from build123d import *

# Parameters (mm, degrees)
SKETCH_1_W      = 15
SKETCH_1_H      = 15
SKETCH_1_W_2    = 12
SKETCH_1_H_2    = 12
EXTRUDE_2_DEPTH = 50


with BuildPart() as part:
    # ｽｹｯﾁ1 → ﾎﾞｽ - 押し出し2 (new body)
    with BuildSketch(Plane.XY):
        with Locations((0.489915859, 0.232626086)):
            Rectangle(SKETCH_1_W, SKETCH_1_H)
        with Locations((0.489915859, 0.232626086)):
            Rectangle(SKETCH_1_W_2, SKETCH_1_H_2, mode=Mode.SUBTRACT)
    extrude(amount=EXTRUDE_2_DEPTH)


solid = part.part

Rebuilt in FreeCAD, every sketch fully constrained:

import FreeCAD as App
import Part
import Sketcher
from FreeCAD import Vector
Q = App.Units.Quantity

doc = App.newDocument("Part")
body = doc.addObject("PartDesign::Body", "Body")

sketch1 = body.newObject("Sketcher::SketchObject", "Sketch")
sketch1.AttachmentSupport = (doc.getObject("XY_Plane"), [""])
sketch1.MapMode = "FlatFace"
sketch1.addGeometry([
    Part.LineSegment(Vector(-7.010084, 7.732626, 0), Vector(-7.010084, -7.267374, 0)),
    Part.LineSegment(Vector(-7.010084, -7.267374, 0), Vector(7.989916, -7.267374, 0)),
    Part.LineSegment(Vector(7.989916, -7.267374, 0), Vector(7.989916, 7.732626, 0)),
    Part.LineSegment(Vector(7.989916, 7.732626, 0), Vector(-7.010084, 7.732626, 0)),
    Part.LineSegment(Vector(6.489916, -5.767374, 0), Vector(-5.510084, -5.767374, 0)),
    Part.LineSegment(Vector(-5.510084, -5.767374, 0), Vector(-5.510084, 6.232626, 0)),
    Part.LineSegment(Vector(-5.510084, 6.232626, 0), Vector(6.489916, 6.232626, 0)),
    Part.LineSegment(Vector(6.489916, 6.232626, 0), Vector(6.489916, -5.767374, 0)),
], False)
sketch1.addConstraint([
    Sketcher.Constraint("Coincident", 0, 2, 1, 1),
    Sketcher.Constraint("Coincident", 1, 2, 2, 1),
    Sketcher.Constraint("Coincident", 2, 2, 3, 1),
    Sketcher.Constraint("Coincident", 3, 2, 0, 1),
    Sketcher.Constraint("Coincident", 4, 2, 5, 1),
    Sketcher.Constraint("Coincident", 5, 2, 6, 1),
    Sketcher.Constraint("Coincident", 6, 2, 7, 1),
    Sketcher.Constraint("Coincident", 7, 2, 4, 1),
    Sketcher.Constraint("Vertical", 0),
    Sketcher.Constraint("Horizontal", 1),
    Sketcher.Constraint("Vertical", 2),
    Sketcher.Constraint("Horizontal", 3),
    Sketcher.Constraint("Horizontal", 4),
    Sketcher.Constraint("Vertical", 5),
    Sketcher.Constraint("Horizontal", 6),
    Sketcher.Constraint("Vertical", 7),
    Sketcher.Constraint("Equal", 3, 0),
    Sketcher.Constraint("Equal", 6, 5),
    Sketcher.Constraint("DistanceX", 1, 1, 1, 2, Q("15 mm")),
    Sketcher.Constraint("DistanceX", 4, 2, 4, 1, Q("12 mm")),
    Sketcher.Constraint("DistanceX", 0, 2, 4, 2, Q("1.5 mm")),
    Sketcher.Constraint("DistanceY", 0, 2, 4, 2, Q("1.5 mm")),
    Sketcher.Constraint("DistanceX", 0, 2, -1, 1, Q("7.010084 mm")),
    Sketcher.Constraint("DistanceY", 0, 2, -1, 1, Q("7.267374 mm")),
])
pad1 = body.newObject("PartDesign::Pad", "Pad")
pad1.Profile = sketch1
pad1.Length = 50

doc.recompute()
